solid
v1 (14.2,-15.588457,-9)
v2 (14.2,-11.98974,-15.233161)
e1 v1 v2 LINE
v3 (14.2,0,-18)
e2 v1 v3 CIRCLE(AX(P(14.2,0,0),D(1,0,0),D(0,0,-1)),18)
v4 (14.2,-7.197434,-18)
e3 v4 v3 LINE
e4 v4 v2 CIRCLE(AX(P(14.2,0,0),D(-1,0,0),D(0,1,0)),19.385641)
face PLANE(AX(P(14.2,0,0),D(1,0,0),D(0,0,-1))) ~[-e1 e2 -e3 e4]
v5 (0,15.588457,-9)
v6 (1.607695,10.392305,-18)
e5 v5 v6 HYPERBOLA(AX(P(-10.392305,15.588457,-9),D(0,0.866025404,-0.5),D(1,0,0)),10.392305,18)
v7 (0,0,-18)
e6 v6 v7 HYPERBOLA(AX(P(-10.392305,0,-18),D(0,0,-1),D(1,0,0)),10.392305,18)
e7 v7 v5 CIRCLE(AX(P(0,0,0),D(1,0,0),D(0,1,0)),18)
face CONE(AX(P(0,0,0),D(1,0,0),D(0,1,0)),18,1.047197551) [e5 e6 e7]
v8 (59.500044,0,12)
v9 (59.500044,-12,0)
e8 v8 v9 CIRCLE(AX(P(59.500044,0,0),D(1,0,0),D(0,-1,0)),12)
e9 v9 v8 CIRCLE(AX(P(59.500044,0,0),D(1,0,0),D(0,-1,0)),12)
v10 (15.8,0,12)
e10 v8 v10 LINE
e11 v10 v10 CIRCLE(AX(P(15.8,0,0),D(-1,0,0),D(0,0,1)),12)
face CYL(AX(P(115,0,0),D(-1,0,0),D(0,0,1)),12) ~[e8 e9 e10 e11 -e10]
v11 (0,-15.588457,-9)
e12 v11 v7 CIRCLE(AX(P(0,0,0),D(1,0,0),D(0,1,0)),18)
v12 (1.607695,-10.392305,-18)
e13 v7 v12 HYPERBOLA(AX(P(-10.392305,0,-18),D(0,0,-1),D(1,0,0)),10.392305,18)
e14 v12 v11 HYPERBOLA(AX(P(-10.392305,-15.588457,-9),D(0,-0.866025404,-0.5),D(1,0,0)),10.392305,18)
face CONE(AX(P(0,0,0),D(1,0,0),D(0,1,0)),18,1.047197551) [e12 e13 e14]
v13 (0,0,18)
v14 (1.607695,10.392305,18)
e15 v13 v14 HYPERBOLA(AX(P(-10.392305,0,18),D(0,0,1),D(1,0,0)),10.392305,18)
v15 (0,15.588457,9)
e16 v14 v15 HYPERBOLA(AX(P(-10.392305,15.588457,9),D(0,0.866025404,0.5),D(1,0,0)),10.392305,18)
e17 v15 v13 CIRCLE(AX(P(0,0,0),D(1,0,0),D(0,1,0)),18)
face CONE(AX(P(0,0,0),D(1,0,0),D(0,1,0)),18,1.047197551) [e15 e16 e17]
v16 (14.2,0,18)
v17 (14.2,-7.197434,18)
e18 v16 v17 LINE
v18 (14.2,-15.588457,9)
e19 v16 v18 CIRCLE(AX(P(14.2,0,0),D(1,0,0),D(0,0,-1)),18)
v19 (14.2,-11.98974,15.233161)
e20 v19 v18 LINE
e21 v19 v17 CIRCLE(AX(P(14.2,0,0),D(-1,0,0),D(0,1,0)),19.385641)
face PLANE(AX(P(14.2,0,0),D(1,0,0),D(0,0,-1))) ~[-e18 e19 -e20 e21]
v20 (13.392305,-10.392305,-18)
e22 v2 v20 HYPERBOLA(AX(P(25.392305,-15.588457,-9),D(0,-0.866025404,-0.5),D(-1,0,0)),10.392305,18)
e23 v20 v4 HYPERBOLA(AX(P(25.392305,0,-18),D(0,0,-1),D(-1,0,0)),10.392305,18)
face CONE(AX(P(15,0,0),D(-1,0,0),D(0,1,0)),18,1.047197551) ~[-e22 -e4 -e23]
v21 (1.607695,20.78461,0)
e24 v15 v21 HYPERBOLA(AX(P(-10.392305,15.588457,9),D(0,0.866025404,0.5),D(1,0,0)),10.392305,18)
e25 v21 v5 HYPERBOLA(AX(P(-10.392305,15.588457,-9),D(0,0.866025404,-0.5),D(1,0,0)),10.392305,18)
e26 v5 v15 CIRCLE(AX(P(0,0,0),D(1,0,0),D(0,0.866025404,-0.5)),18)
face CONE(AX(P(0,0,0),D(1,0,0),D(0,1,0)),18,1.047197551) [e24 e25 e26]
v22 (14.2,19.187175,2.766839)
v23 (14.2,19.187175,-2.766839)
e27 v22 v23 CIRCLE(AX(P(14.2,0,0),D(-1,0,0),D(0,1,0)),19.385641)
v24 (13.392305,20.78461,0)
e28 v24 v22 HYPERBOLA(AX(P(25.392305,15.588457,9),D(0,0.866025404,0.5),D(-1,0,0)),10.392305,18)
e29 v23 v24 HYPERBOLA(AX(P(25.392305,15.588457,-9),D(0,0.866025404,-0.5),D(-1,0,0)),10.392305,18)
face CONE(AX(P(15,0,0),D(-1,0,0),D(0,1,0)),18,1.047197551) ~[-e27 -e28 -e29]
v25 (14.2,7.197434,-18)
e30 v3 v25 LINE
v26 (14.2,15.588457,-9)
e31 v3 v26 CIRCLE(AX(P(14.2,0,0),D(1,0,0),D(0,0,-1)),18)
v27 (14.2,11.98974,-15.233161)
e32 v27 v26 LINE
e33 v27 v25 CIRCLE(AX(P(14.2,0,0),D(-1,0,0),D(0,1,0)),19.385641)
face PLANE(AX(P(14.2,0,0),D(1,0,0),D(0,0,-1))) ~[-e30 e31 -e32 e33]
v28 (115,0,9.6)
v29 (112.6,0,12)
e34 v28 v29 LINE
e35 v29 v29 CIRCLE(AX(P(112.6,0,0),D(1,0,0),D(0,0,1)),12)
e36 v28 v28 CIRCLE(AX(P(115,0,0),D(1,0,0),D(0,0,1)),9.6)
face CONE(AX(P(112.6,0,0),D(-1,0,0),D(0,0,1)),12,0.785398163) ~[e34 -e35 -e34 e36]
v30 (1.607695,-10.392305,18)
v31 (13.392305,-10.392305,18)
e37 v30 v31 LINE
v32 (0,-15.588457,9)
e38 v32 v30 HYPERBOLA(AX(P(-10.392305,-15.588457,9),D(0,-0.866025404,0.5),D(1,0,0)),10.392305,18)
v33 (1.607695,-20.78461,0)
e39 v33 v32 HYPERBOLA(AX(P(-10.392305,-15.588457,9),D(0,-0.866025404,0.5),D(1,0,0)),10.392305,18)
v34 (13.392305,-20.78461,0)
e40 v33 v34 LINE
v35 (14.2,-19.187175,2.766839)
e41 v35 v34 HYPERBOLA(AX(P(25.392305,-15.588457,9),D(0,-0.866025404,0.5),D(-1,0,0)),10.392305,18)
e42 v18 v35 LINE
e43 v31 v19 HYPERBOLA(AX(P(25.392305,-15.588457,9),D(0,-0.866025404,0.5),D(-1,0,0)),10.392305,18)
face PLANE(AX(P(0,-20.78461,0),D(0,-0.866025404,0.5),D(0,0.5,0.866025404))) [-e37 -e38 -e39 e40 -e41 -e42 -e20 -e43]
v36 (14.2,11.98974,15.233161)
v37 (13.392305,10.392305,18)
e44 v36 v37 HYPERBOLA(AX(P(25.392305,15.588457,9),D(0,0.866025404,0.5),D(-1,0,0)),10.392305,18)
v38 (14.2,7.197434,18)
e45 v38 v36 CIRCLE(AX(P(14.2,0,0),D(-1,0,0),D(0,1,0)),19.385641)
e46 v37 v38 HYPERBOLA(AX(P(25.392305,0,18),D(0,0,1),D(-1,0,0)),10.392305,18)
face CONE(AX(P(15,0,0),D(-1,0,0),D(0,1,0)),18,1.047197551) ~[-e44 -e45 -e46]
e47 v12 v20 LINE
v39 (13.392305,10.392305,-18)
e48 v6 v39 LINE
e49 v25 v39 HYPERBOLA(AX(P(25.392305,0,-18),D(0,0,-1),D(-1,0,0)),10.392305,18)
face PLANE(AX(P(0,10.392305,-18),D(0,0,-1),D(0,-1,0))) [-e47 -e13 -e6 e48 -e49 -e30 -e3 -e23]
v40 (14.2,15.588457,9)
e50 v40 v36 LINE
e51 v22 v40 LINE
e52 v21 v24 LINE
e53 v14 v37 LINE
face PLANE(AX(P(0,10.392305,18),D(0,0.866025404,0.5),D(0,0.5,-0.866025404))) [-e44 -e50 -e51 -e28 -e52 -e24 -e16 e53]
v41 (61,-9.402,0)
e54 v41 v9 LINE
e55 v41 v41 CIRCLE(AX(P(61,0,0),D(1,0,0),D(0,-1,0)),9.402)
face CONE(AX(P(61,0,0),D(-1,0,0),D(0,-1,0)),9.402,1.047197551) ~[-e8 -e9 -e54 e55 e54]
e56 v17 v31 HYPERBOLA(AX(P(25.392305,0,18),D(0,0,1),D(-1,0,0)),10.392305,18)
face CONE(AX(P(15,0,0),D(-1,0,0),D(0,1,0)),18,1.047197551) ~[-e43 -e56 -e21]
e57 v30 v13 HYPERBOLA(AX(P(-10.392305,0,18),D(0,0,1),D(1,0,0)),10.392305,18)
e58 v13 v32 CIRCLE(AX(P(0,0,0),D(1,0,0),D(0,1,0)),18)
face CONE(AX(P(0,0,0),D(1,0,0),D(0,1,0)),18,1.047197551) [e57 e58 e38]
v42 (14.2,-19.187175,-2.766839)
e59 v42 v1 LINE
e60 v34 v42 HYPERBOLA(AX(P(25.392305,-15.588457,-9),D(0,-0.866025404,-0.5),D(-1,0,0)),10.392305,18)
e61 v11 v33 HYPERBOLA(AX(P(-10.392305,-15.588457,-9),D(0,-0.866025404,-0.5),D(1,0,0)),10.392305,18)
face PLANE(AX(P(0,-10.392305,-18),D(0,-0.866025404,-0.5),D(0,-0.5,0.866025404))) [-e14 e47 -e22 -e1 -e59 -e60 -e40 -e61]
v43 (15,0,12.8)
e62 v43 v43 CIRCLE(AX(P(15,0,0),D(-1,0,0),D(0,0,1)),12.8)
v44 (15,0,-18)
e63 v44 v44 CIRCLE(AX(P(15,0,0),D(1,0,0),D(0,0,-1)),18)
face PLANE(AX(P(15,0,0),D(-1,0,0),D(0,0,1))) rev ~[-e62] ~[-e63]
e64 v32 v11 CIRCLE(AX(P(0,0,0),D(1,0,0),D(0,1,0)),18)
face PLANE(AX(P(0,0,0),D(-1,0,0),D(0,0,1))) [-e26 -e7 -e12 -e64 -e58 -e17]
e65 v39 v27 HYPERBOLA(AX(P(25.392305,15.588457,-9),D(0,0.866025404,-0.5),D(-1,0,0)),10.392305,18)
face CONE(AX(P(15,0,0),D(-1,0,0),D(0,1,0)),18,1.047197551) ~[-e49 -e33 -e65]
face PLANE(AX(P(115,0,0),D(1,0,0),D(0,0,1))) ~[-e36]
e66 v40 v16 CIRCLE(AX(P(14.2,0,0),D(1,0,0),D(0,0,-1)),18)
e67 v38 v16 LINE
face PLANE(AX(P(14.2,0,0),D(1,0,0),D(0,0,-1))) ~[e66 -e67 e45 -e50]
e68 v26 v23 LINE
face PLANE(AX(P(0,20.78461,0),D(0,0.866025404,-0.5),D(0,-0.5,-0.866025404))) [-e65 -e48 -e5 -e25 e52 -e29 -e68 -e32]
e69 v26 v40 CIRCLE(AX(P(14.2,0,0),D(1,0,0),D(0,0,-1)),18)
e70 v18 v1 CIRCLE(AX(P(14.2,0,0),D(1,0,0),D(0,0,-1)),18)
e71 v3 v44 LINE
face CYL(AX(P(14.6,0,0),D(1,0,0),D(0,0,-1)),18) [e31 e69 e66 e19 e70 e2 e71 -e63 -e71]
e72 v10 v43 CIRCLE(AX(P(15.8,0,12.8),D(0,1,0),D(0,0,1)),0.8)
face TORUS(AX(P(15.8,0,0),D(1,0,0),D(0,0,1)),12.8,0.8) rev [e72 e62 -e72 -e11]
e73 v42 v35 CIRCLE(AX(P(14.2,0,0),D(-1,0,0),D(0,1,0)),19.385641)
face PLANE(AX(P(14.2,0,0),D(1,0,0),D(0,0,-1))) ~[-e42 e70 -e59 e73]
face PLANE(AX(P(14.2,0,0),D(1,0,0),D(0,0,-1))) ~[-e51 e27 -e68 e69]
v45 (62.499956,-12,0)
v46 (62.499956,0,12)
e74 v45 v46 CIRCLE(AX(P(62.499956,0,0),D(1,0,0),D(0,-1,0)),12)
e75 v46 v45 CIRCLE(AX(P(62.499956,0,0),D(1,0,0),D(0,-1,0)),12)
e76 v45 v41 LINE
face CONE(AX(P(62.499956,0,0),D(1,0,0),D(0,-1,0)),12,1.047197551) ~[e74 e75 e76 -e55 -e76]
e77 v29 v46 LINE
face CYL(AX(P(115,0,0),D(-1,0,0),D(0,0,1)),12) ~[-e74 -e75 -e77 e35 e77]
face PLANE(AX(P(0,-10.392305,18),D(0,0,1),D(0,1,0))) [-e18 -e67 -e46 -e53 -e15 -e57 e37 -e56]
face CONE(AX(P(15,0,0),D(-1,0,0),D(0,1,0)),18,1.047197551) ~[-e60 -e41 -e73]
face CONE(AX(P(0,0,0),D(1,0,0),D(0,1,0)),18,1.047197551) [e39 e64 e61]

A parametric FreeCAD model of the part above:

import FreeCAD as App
import Part
import Sketcher
from FreeCAD import Vector
Q = App.Units.Quantity


def edges_at(feature, points):
    """Names of the edges that pass closest to the given points."""
    edges = feature.Shape.Edges
    near = lambda p: min(range(len(edges)), key=lambda i: edges[i].distToShape(Part.Vertex(*p))[0])
    return sorted({f"Edge{near(p) + 1}" for p in points})


def add_polygon(sketch, points):
    """Adds a closed chain of lines whose ends are joined by coincident constraints."""
    first, n = sketch.GeometryCount, len(points)
    for a, b in zip(points, points[1:] + points[:1]):
        sketch.addGeometry(Part.LineSegment(App.Vector(*a, 0), App.Vector(*b, 0)), False)
    for i in range(n):
        sketch.addConstraint(Sketcher.Constraint("Coincident", first + i, 2, first + (i + 1) % n, 1))

doc = App.newDocument("Part")
body = doc.addObject("PartDesign::Body", "Body")

# Sketch on YZ plane
sketch1 = doc.addObject("Sketcher::SketchObject", "Sketch")
body.addObject(sketch1)
sketch1.AttachmentSupport = (doc.YZ_Plane, [""])
sketch1.MapMode = "FlatFace"
add_polygon(sketch1, [(-10, -18), (10, -18), (21, 0), (10, 18), (-10, 18), (-21, 0)])  # lines 0-5
sketch1.addConstraint(Sketcher.Constraint("Horizontal", 0))
sketch1.addConstraint(Sketcher.Constraint("Horizontal", 3))
sketch1.addConstraint(Sketcher.Constraint("Symmetric", 0, 2, 3, 2, -1, 1))
sketch1.addConstraint(Sketcher.Constraint("Symmetric", 1, 2, 4, 2, -1, 1))
sketch1.addConstraint(Sketcher.Constraint("PointOnObject", 1, 2, -1))
sketch1.addConstraint(Sketcher.Constraint("Parallel", 2, 5))
sketch1.addConstraint(Sketcher.Constraint("Vertical", 0, 2, 2, 2))
sketch1.addConstraint(Sketcher.Constraint("Angle", 1, Q("60 deg")))
sketch1.addConstraint(Sketcher.Constraint("DistanceY", 0, 2, -1, 1, Q("18 mm")))
sketch1.addConstraint(Sketcher.Constraint("DistanceX", 0, 1, 0, 2, Q("20.78461 mm")))
pad1 = doc.addObject("PartDesign::Pad", "Pad")
body.addObject(pad1)
pad1.Profile = sketch1
pad1.Length = 15

# Sketch on XY plane
sketch2 = doc.addObject("Sketcher::SketchObject", "Sketch001")
body.addObject(sketch2)
sketch2.AttachmentSupport = (doc.XY_Plane, [""])
sketch2.MapMode = "FlatFace"
add_polygon(sketch2, [(0, 0), (115, 0), (115, 12), (0, 12)])  # lines 0-3
sketch2.addConstraint(Sketcher.Constraint("Horizontal", 0))
sketch2.addConstraint(Sketcher.Constraint("Vertical", 1))
sketch2.addConstraint(Sketcher.Constraint("Horizontal", 2))
sketch2.addConstraint(Sketcher.Constraint("Vertical", 3))
sketch2.addConstraint(Sketcher.Constraint("Coincident", 3, 2, -1, 1))
sketch2.addConstraint(Sketcher.Constraint("DistanceX", 0, 1, 0, 2, Q("115 mm")))
sketch2.addConstraint(Sketcher.Constraint("DistanceY", 1, 1, 1, 2, Q("12 mm")))
revolution = doc.addObject("PartDesign::Revolution", "Revolution")
body.addObject(revolution)
revolution.Profile = sketch2
revolution.ReferenceAxis = (sketch2, ["H_Axis"])
revolution.Angle = 360

# Sketch on XY plane
sketch3 = doc.addObject("Sketcher::SketchObject", "Sketch002")
body.addObject(sketch3)
sketch3.AttachmentSupport = (doc.XY_Plane, [""])
sketch3.MapMode = "FlatFace"
add_polygon(sketch3, [(0, 18), (4, 26), (4, 31), (-10, 31), (-10, 18)])  # lines 0-4
sketch3.addConstraint(Sketcher.Constraint("Vertical", 1))
sketch3.addConstraint(Sketcher.Constraint("Horizontal", 2))
sketch3.addConstraint(Sketcher.Constraint("Vertical", 3))
sketch3.addConstraint(Sketcher.Constraint("Horizontal", 4))
sketch3.addConstraint(Sketcher.Constraint("PointOnObject", 4, 2, -2))
sketch3.addConstraint(Sketcher.Constraint("DistanceX", 4, 1, 4, 2, Q("10 mm")))
sketch3.addConstraint(Sketcher.Constraint("DistanceY", 1, 1, 1, 2, Q("5 mm")))
sketch3.addConstraint(Sketcher.Constraint("Angle", 0, Q("60 deg")))
sketch3.addConstraint(Sketcher.Constraint("DistanceY", -1, 1, 3, 2, Q("18 mm")))
sketch3.addConstraint(Sketcher.Constraint("DistanceY", 3, 2, 3, 1, Q("12.78461 mm")))
groove = doc.addObject("PartDesign::Groove", "Groove")
body.addObject(groove)
groove.Profile = sketch3
groove.ReferenceAxis = (sketch3, ["H_Axis"])
groove.Angle = 360

# Sketch on XY plane
sketch4 = doc.addObject("Sketcher::SketchObject", "Sketch003")
body.addObject(sketch4)
sketch4.AttachmentSupport = (doc.XY_Plane, [""])
sketch4.MapMode = "FlatFace"
add_polygon(sketch4, [(11, 26), (15, 18), (21, 18), (21, 31), (11, 31)])  # lines 0-4
sketch4.addConstraint(Sketcher.Constraint("Horizontal", 1))
sketch4.addConstraint(Sketcher.Constraint("Vertical", 2))
sketch4.addConstraint(Sketcher.Constraint("Horizontal", 3))
sketch4.addConstraint(Sketcher.Constraint("Vertical", 4))
sketch4.addConstraint(Sketcher.Constraint("DistanceX", 3, 2, 3, 1, Q("10 mm")))
sketch4.addConstraint(Sketcher.Constraint("DistanceY", 4, 2, 4, 1, Q("5 mm")))
sketch4.addConstraint(Sketcher.Constraint("Angle", 0, Q("-60 deg")))
sketch4.addConstraint(Sketcher.Constraint("DistanceX", -1, 1, 0, 2, Q("15 mm")))
sketch4.addConstraint(Sketcher.Constraint("DistanceY", -1, 1, 0, 2, Q("18 mm")))
sketch4.addConstraint(Sketcher.Constraint("DistanceY", 2, 1, 2, 2, Q("12.78461 mm")))
groove2 = doc.addObject("PartDesign::Groove", "Groove001")
body.addObject(groove2)
groove2.Profile = sketch4
groove2.ReferenceAxis = (sketch4, ["H_Axis"])
groove2.Angle = 360

# Sketch on XY plane
sketch5 = doc.addObject("Sketcher::SketchObject", "Sketch004")
body.addObject(sketch5)
sketch5.AttachmentSupport = (doc.XY_Plane, [""])
sketch5.MapMode = "FlatFace"
add_polygon(sketch5, [(14.2, 30.8), (14.2, 18), (15, 18), (15, 30.8)])  # lines 0-3
sketch5.addConstraint(Sketcher.Constraint("Vertical", 0))
sketch5.addConstraint(Sketcher.Constraint("Horizontal", 1))
sketch5.addConstraint(Sketcher.Constraint("Vertical", 2))
sketch5.addConstraint(Sketcher.Constraint("Horizontal", 3))
sketch5.addConstraint(Sketcher.Constraint("DistanceX", 1, 1, 1, 2, Q("0.8 mm")))
sketch5.addConstraint(Sketcher.Constraint("DistanceY", -1, 1, 0, 2, Q("18 mm")))
sketch5.addConstraint(Sketcher.Constraint("DistanceX", -1, 1, 1, 2, Q("15 mm")))
sketch5.addConstraint(Sketcher.Constraint("DistanceY", 0, 2, 0, 1, Q("12.78461 mm")))
groove3 = doc.addObject("PartDesign::Groove", "Groove002")
body.addObject(groove3)
groove3.Profile = sketch5
groove3.ReferenceAxis = (sketch5, ["H_Axis"])
groove3.Angle = 360
doc.recompute()

chamfer = doc.addObject("PartDesign::Chamfer", "Chamfer")
body.addObject(chamfer)
chamfer.Base = (groove3, edges_at(groove3, [(115, 0, -12)]))
chamfer.Size = 2.4
doc.recompute()

fillet = doc.addObject("PartDesign::Fillet", "Fillet")
body.addObject(fillet)
fillet.Base = (chamfer, edges_at(chamfer, [(15, 0, -12)]))
fillet.Radius = 0.8

# Sketch on XY plane
sketch6 = doc.addObject("Sketcher::SketchObject", "Sketch005")
body.addObject(sketch6)
sketch6.AttachmentSupport = (doc.XY_Plane, [""])
sketch6.MapMode = "FlatFace"
add_polygon(sketch6, [(61, -9.4), (59.5, -12), (59.5, -15), (62.5, -15), (62.5, -12)])  # lines 0-4
sketch6.addConstraint(Sketcher.Constraint("Vertical", 1))
sketch6.addConstraint(Sketcher.Constraint("Horizontal", 2))
sketch6.addConstraint(Sketcher.Constraint("Vertical", 3))
sketch6.addConstraint(Sketcher.Constraint("Horizontal", 0, 2, 3, 2))
sketch6.addConstraint(Sketcher.Constraint("Equal", 0, 4))
sketch6.addConstraint(Sketcher.Constraint("DistanceY", 1, 2, 1, 1, Q("3 mm")))
sketch6.addConstraint(Sketcher.Constraint("Angle", 0, Q("-120 deg")))
sketch6.addConstraint(Sketcher.Constraint("DistanceY", 0, 2, -1, 1, Q("12 mm")))
sketch6.addConstraint(Sketcher.Constraint("DistanceX", -1, 1, 4, 2, Q("61 mm")))
sketch6.addConstraint(Sketcher.Constraint("DistanceY", 4, 2, -1, 1, Q("9.402 mm")))
groove4 = doc.addObject("PartDesign::Groove", "Groove003")
body.addObject(groove4)
groove4.Profile = sketch6
groove4.ReferenceAxis = (sketch6, ["H_Axis"])
groove4.Angle = 360

doc.recompute()
